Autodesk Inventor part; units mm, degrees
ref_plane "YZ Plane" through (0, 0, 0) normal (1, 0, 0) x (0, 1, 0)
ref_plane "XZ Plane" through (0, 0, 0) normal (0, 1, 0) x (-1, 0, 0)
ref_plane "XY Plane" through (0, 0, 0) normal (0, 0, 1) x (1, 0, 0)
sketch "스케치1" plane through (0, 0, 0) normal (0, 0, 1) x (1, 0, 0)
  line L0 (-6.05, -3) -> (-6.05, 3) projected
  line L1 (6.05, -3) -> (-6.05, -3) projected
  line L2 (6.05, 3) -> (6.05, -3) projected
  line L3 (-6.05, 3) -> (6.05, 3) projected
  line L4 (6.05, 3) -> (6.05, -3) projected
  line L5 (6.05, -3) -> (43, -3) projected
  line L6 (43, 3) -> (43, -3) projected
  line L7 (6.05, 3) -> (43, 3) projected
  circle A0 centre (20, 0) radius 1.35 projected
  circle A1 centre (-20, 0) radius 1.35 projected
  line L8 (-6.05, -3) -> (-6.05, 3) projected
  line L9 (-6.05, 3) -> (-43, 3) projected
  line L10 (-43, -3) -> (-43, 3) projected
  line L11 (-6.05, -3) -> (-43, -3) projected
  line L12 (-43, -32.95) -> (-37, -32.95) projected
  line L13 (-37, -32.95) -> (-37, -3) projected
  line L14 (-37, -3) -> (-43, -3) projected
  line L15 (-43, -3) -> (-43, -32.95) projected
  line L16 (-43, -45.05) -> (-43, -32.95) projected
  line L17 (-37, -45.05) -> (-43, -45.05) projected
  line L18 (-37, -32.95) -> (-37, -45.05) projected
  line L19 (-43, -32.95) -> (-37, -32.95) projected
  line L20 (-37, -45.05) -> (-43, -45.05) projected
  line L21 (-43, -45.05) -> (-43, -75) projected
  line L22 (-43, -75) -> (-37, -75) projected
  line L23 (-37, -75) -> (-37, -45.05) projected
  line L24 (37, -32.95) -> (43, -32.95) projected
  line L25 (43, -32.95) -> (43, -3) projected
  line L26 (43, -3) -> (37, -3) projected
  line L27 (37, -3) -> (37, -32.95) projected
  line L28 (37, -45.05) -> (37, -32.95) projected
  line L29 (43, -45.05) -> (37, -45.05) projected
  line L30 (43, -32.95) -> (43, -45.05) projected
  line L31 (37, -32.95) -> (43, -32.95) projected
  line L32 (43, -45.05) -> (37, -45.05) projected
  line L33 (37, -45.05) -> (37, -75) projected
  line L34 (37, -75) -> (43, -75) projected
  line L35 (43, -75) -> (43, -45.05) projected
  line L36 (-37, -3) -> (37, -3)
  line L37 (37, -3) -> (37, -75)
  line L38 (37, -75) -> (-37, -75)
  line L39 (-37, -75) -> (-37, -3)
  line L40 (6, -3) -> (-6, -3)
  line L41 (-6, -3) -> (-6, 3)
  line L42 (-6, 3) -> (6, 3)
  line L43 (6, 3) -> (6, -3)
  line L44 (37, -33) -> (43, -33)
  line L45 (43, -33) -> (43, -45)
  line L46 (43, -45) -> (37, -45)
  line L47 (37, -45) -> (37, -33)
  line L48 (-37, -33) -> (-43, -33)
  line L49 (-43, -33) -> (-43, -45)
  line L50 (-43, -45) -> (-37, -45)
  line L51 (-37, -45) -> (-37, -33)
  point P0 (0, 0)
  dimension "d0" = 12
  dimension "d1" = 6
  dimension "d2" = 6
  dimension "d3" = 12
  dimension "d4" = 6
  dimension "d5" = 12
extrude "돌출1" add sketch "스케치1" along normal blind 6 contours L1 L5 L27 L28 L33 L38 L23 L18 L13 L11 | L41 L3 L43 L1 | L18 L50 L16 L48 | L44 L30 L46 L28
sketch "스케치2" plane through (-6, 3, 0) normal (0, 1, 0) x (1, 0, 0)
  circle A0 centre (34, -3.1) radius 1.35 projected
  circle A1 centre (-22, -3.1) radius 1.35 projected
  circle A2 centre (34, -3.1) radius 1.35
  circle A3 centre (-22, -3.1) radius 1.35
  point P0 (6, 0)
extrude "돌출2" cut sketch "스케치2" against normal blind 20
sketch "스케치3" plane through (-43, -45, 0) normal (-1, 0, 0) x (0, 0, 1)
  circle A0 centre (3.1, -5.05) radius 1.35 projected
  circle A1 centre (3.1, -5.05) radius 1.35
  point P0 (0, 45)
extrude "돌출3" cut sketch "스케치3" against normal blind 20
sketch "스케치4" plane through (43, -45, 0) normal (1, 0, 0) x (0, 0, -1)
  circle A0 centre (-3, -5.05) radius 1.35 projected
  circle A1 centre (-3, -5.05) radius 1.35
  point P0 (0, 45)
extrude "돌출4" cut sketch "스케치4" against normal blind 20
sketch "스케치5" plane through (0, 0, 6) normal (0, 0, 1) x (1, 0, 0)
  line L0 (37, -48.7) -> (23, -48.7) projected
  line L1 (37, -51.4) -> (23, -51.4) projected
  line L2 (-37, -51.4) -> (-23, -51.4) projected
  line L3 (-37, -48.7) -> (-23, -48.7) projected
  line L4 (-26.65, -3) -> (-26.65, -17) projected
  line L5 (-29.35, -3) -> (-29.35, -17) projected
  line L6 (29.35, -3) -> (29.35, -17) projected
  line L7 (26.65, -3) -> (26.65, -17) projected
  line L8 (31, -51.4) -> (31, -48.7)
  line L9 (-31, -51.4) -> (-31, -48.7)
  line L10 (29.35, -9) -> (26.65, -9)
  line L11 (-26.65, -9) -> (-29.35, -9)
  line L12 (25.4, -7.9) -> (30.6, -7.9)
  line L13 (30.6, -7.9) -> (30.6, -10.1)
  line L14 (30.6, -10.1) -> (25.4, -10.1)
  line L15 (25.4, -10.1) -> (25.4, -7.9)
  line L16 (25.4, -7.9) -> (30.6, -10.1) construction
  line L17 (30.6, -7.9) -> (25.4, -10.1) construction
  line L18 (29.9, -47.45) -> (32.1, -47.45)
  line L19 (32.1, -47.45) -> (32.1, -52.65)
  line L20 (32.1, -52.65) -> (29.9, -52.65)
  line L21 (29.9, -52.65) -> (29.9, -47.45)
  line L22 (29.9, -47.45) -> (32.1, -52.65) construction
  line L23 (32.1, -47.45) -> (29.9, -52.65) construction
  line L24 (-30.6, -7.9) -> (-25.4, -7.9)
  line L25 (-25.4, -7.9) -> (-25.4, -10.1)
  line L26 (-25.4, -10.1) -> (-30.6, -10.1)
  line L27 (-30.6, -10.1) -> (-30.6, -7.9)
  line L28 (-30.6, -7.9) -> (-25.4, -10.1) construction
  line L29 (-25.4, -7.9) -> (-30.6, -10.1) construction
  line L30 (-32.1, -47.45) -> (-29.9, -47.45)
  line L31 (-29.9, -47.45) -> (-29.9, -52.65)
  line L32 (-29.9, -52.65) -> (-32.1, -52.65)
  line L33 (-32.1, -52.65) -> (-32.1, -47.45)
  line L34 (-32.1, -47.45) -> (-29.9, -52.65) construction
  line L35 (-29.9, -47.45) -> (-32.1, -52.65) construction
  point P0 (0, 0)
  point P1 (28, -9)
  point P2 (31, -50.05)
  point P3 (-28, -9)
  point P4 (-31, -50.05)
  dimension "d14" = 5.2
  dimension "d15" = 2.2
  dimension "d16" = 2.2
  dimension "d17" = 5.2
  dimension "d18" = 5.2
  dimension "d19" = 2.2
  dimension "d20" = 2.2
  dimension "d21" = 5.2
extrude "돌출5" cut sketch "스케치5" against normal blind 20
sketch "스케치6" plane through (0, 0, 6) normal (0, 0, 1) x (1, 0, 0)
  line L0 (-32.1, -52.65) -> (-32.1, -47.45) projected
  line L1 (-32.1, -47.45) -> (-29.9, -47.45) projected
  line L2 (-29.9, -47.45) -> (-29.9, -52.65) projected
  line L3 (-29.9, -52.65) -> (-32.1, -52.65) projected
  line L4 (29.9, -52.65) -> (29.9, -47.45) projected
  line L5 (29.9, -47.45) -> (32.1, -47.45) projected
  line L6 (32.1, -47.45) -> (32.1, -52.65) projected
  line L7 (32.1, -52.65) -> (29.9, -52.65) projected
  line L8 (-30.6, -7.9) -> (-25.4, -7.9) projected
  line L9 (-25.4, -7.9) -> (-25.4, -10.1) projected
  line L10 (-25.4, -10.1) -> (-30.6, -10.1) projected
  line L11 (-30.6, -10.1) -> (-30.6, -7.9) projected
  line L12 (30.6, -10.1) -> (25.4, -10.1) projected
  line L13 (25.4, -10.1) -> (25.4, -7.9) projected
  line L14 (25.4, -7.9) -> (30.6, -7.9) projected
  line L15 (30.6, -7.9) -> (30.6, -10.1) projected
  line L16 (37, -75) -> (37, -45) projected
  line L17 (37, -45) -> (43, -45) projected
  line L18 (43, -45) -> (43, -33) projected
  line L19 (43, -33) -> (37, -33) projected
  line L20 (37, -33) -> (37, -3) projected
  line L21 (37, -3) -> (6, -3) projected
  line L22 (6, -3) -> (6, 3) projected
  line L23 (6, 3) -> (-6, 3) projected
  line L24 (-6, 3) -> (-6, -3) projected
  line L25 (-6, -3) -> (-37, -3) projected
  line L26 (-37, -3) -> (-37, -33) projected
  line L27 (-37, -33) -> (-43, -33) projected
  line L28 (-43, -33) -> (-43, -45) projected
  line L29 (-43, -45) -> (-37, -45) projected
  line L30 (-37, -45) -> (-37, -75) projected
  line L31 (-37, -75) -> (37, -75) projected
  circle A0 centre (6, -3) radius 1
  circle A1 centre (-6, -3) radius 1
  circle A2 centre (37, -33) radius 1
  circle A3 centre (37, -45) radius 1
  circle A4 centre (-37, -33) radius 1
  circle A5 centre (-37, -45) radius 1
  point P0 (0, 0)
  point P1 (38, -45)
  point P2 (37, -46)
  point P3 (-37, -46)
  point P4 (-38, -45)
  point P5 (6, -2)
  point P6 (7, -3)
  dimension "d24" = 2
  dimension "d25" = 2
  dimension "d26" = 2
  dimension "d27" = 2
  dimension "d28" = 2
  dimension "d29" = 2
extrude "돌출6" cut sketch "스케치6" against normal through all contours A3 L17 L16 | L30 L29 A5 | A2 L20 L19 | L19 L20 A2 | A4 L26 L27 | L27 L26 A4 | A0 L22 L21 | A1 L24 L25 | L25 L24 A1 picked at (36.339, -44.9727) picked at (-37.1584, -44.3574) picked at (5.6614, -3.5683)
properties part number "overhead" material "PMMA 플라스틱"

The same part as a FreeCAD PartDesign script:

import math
import FreeCAD as App
import Part
import Sketcher

doc = App.newDocument("Part")
body = doc.addObject("PartDesign::Body", "Body")

# Sketch on XY plane
sketch1 = doc.addObject("Sketcher::SketchObject", "Sketch")
body.addObject(sketch1)
sketch1.AttachmentSupport = (doc.XY_Plane, [""])
sketch1.MapMode = "FlatFace"
sketch1.addGeometry(Part.LineSegment(App.Vector(-6, -3, 0), App.Vector(-37, -3, 0)), False)
sketch1.addGeometry(Part.LineSegment(App.Vector(-37, -3, 0), App.Vector(-37, -33, 0)), False)
sketch1.addGeometry(Part.LineSegment(App.Vector(-37, -33, 0), App.Vector(-43, -33, 0)), False)
sketch1.addGeometry(Part.LineSegment(App.Vector(-43, -33, 0), App.Vector(-43, -45, 0)), False)
sketch1.addGeometry(Part.LineSegment(App.Vector(-43, -45, 0), App.Vector(-37, -45, 0)), False)
sketch1.addGeometry(Part.LineSegment(App.Vector(-37, -45, 0), App.Vector(-37, -75, 0)), False)
sketch1.addGeometry(Part.LineSegment(App.Vector(-37, -75, 0), App.Vector(37, -75, 0)), False)
sketch1.addGeometry(Part.LineSegment(App.Vector(37, -75, 0), App.Vector(37, -45, 0)), False)
sketch1.addGeometry(Part.LineSegment(App.Vector(37, -45, 0), App.Vector(43, -45, 0)), False)
sketch1.addGeometry(Part.LineSegment(App.Vector(43, -45, 0), App.Vector(43, -33, 0)), False)
sketch1.addGeometry(Part.LineSegment(App.Vector(43, -33, 0), App.Vector(37, -33, 0)), False)
sketch1.addGeometry(Part.LineSegment(App.Vector(37, -33, 0), App.Vector(37, -3, 0)), False)
sketch1.addGeometry(Part.LineSegment(App.Vector(37, -3, 0), App.Vector(6, -3, 0)), False)
sketch1.addGeometry(Part.LineSegment(App.Vector(6, -3, 0), App.Vector(6, 3, 0)), False)
sketch1.addGeometry(Part.LineSegment(App.Vector(6, 3, 0), App.Vector(-6, 3, 0)), False)
sketch1.addGeometry(Part.LineSegment(App.Vector(-6, 3, 0), App.Vector(-6, -3, 0)), False)
sketch1.addConstraint(Sketcher.Constraint("Coincident", 0, 2, 1, 1))
sketch1.addConstraint(Sketcher.Constraint("Coincident", 1, 2, 2, 1))
sketch1.addConstraint(Sketcher.Constraint("Coincident", 2, 2, 3, 1))
sketch1.addConstraint(Sketcher.Constraint("Coincident", 3, 2, 4, 1))
sketch1.addConstraint(Sketcher.Constraint("Coincident", 4, 2, 5, 1))
sketch1.addConstraint(Sketcher.Constraint("Coincident", 5, 2, 6, 1))
sketch1.addConstraint(Sketcher.Constraint("Coincident", 6, 2, 7, 1))
sketch1.addConstraint(Sketcher.Constraint("Coincident", 7, 2, 8, 1))
sketch1.addConstraint(Sketcher.Constraint("Coincident", 8, 2, 9, 1))
sketch1.addConstraint(Sketcher.Constraint("Coincident", 9, 2, 10, 1))
sketch1.addConstraint(Sketcher.Constraint("Coincident", 10, 2, 11, 1))
sketch1.addConstraint(Sketcher.Constraint("Coincident", 11, 2, 12, 1))
sketch1.addConstraint(Sketcher.Constraint("Coincident", 12, 2, 13, 1))
sketch1.addConstraint(Sketcher.Constraint("Coincident", 13, 2, 14, 1))
sketch1.addConstraint(Sketcher.Constraint("Coincident", 14, 2, 15, 1))
sketch1.addConstraint(Sketcher.Constraint("Coincident", 15, 2, 0, 1))
sketch1.addConstraint(Sketcher.Constraint("Horizontal", 0))
sketch1.addConstraint(Sketcher.Constraint("Vertical", 1))
sketch1.addConstraint(Sketcher.Constraint("Horizontal", 2))
sketch1.addConstraint(Sketcher.Constraint("Vertical", 3))
sketch1.addConstraint(Sketcher.Constraint("Horizontal", 4))
sketch1.addConstraint(Sketcher.Constraint("Vertical", 5))
sketch1.addConstraint(Sketcher.Constraint("Horizontal", 6))
sketch1.addConstraint(Sketcher.Constraint("Vertical", 7))
sketch1.addConstraint(Sketcher.Constraint("Horizontal", 8))
sketch1.addConstraint(Sketcher.Constraint("Vertical", 9))
sketch1.addConstraint(Sketcher.Constraint("Horizontal", 10))
sketch1.addConstraint(Sketcher.Constraint("Vertical", 11))
sketch1.addConstraint(Sketcher.Constraint("Horizontal", 12))
sketch1.addConstraint(Sketcher.Constraint("Vertical", 13))
sketch1.addConstraint(Sketcher.Constraint("Horizontal", 14))
sketch1.addConstraint(Sketcher.Constraint("Vertical", 15))
sketch1.addConstraint(Sketcher.Constraint("Symmetric", 12, 2, 14, 2, -1, 1))
sketch1.addConstraint(Sketcher.Constraint("Symmetric", 4, 2, 7, 2, -2))
sketch1.addConstraint(Sketcher.Constraint("Symmetric", 2, 2, 9, 2, -2))
sketch1.addConstraint(Sketcher.Constraint("Symmetric", 0, 2, 11, 2, -2))
sketch1.addConstraint(Sketcher.Constraint("Vertical", 1, 2, 4, 2))
sketch1.addConstraint(Sketcher.Constraint("Equal", 14, 3))
sketch1.addConstraint(Sketcher.Constraint("Equal", 1, 5))
sketch1.addConstraint(Sketcher.Constraint("Equal", 10, 13))
sketch1.addConstraint(Sketcher.Constraint("DistanceX", 2, 2, 2, 1, 6.0))
sketch1.addConstraint(Sketcher.Constraint("DistanceX", 14, 2, 14, 1, 12.0))
sketch1.addConstraint(Sketcher.Constraint("DistanceX", 0, 2, 0, 1, 31.0))
sketch1.addConstraint(Sketcher.Constraint("DistanceY", 1, 2, 1, 1, 30.0))
pad1 = doc.addObject("PartDesign::Pad", "Pad")
body.addObject(pad1)
pad1.Profile = sketch1
pad1.Length = 6

# Sketch on XZ plane
sketch2 = doc.addObject("Sketcher::SketchObject", "Sketch001")
body.addObject(sketch2)
sketch2.AttachmentSupport = (doc.XZ_Plane, [""])
sketch2.MapMode = "FlatFace"
sketch2.AttachmentOffset = App.Placement(App.Vector(0, 0, -3), App.Rotation())
sketch2.addGeometry(Part.Circle(App.Vector(28, 3.1, 0), App.Vector(0, 0, 1), 1.35), False)
sketch2.addGeometry(Part.Circle(App.Vector(-28, 3.1, 0), App.Vector(0, 0, 1), 1.35), False)
sketch2.addConstraint(Sketcher.Constraint("Equal", 0, 1))
sketch2.addConstraint(Sketcher.Constraint("Symmetric", 0, 3, 1, 3, -2))
sketch2.addConstraint(Sketcher.Constraint("Diameter", 0, 2.7))
sketch2.addConstraint(Sketcher.Constraint("DistanceX", -1, 1, 0, 3, 28.0))
sketch2.addConstraint(Sketcher.Constraint("DistanceY", -1, 1, 0, 3, 3.1))
pocket1 = doc.addObject("PartDesign::Pocket", "Pocket")
body.addObject(pocket1)
pocket1.Profile = sketch2
pocket1.Length = 20
pocket1.Reversed = True

# Sketch on YZ plane
sketch3 = doc.addObject("Sketcher::SketchObject", "Sketch002")
body.addObject(sketch3)
sketch3.AttachmentSupport = (doc.YZ_Plane, [""])
sketch3.MapMode = "FlatFace"
sketch3.AttachmentOffset = App.Placement(App.Vector(0, 0, -43), App.Rotation())
sketch3.addGeometry(Part.Circle(App.Vector(-50.05, 3.1, 0), App.Vector(0, 0, 1), 1.35), False)
sketch3.addConstraint(Sketcher.Constraint("Diameter", 0, 2.7))
sketch3.addConstraint(Sketcher.Constraint("DistanceY", -1, 1, 0, 3, 3.1))
sketch3.addConstraint(Sketcher.Constraint("DistanceX", 0, 3, -1, 1, 50.05))
pocket2 = doc.addObject("PartDesign::Pocket", "Pocket001")
body.addObject(pocket2)
pocket2.Profile = sketch3
pocket2.Length = 20
pocket2.Reversed = True

# Sketch on YZ plane
sketch4 = doc.addObject("Sketcher::SketchObject", "Sketch003")
body.addObject(sketch4)
sketch4.AttachmentSupport = (doc.YZ_Plane, [""])
sketch4.MapMode = "FlatFace"
sketch4.AttachmentOffset = App.Placement(App.Vector(0, 0, 43), App.Rotation())
sketch4.addGeometry(Part.Circle(App.Vector(-50.05, 3, 0), App.Vector(0, 0, 1), 1.35), False)
sketch4.addConstraint(Sketcher.Constraint("Diameter", 0, 2.7))
sketch4.addConstraint(Sketcher.Constraint("DistanceY", -1, 1, 0, 3, 3.0))
sketch4.addConstraint(Sketcher.Constraint("DistanceX", 0, 3, -1, 1, 50.05))
pocket3 = doc.addObject("PartDesign::Pocket", "Pocket002")
body.addObject(pocket3)
pocket3.Profile = sketch4
pocket3.Length = 20

# Sketch on XY plane
sketch5 = doc.addObject("Sketcher::SketchObject", "Sketch004")
body.addObject(sketch5)
sketch5.AttachmentSupport = (doc.XY_Plane, [""])
sketch5.MapMode = "FlatFace"
sketch5.AttachmentOffset = App.Placement(App.Vector(0, 0, 6), App.Rotation())
sketch5.addGeometry(Part.LineSegment(App.Vector(32.1, -47.45, 0), App.Vector(29.9, -47.45, 0)), False)
sketch5.addGeometry(Part.LineSegment(App.Vector(29.9, -47.45, 0), App.Vector(29.9, -52.65, 0)), False)
sketch5.addGeometry(Part.LineSegment(App.Vector(29.9, -52.65, 0), App.Vector(32.1, -52.65, 0)), False)
sketch5.addGeometry(Part.LineSegment(App.Vector(32.1, -52.65, 0), App.Vector(32.1, -47.45, 0)), False)
sketch5.addGeometry(Part.LineSegment(App.Vector(-32.1, -52.65, 0), App.Vector(-29.9, -52.65, 0)), False)
sketch5.addGeometry(Part.LineSegment(App.Vector(-29.9, -52.65, 0), App.Vector(-29.9, -47.45, 0)), False)
sketch5.addGeometry(Part.LineSegment(App.Vector(-29.9, -47.45, 0), App.Vector(-32.1, -47.45, 0)), False)
sketch5.addGeometry(Part.LineSegment(App.Vector(-32.1, -47.45, 0), App.Vector(-32.1, -52.65, 0)), False)
sketch5.addGeometry(Part.LineSegment(App.Vector(-25.4, -7.9, 0), App.Vector(-30.6, -7.9, 0)), False)
sketch5.addGeometry(Part.LineSegment(App.Vector(-30.6, -7.9, 0), App.Vector(-30.6, -10.1, 0)), False)
sketch5.addGeometry(Part.LineSegment(App.Vector(-30.6, -10.1, 0), App.Vector(-25.4, -10.1, 0)), False)
sketch5.addGeometry(Part.LineSegment(App.Vector(-25.4, -10.1, 0), App.Vector(-25.4, -7.9, 0)), False)
sketch5.addGeometry(Part.LineSegment(App.Vector(30.6, -7.9, 0), App.Vector(25.4, -7.9, 0)), False)
sketch5.addGeometry(Part.LineSegment(App.Vector(25.4, -7.9, 0), App.Vector(25.4, -10.1, 0)), False)
sketch5.addGeometry(Part.LineSegment(App.Vector(25.4, -10.1, 0), App.Vector(30.6, -10.1, 0)), False)
sketch5.addGeometry(Part.LineSegment(App.Vector(30.6, -10.1, 0), App.Vector(30.6, -7.9, 0)), False)
sketch5.addConstraint(Sketcher.Constraint("Coincident", 0, 2, 1, 1))
sketch5.addConstraint(Sketcher.Constraint("Coincident", 1, 2, 2, 1))
sketch5.addConstraint(Sketcher.Constraint("Coincident", 2, 2, 3, 1))
sketch5.addConstraint(Sketcher.Constraint("Coincident", 3, 2, 0, 1))
sketch5.addConstraint(Sketcher.Constraint("Coincident", 4, 2, 5, 1))
sketch5.addConstraint(Sketcher.Constraint("Coincident", 5, 2, 6, 1))
sketch5.addConstraint(Sketcher.Constraint("Coincident", 6, 2, 7, 1))
sketch5.addConstraint(Sketcher.Constraint("Coincident", 7, 2, 4, 1))
sketch5.addConstraint(Sketcher.Constraint("Coincident", 8, 2, 9, 1))
sketch5.addConstraint(Sketcher.Constraint("Coincident", 9, 2, 10, 1))
sketch5.addConstraint(Sketcher.Constraint("Coincident", 10, 2, 11, 1))
sketch5.addConstraint(Sketcher.Constraint("Coincident", 11, 2, 8, 1))
sketch5.addConstraint(Sketcher.Constraint("Coincident", 12, 2, 13, 1))
sketch5.addConstraint(Sketcher.Constraint("Coincident", 13, 2, 14, 1))
sketch5.addConstraint(Sketcher.Constraint("Coincident", 14, 2, 15, 1))
sketch5.addConstraint(Sketcher.Constraint("Coincident", 15, 2, 12, 1))
sketch5.addConstraint(Sketcher.Constraint("Horizontal", 0))
sketch5.addConstraint(Sketcher.Constraint("Vertical", 1))
sketch5.addConstraint(Sketcher.Constraint("Horizontal", 2))
sketch5.addConstraint(Sketcher.Constraint("Vertical", 3))
sketch5.addConstraint(Sketcher.Constraint("Horizontal", 4))
sketch5.addConstraint(Sketcher.Constraint("Vertical", 5))
sketch5.addConstraint(Sketcher.Constraint("Horizontal", 6))
sketch5.addConstraint(Sketcher.Constraint("Vertical", 7))
sketch5.addConstraint(Sketcher.Constraint("Horizontal", 8))
sketch5.addConstraint(Sketcher.Constraint("Vertical", 9))
sketch5.addConstraint(Sketcher.Constraint("Horizontal", 10))
sketch5.addConstraint(Sketcher.Constraint("Vertical", 11))
sketch5.addConstraint(Sketcher.Constraint("Horizontal", 12))
sketch5.addConstraint(Sketcher.Constraint("Vertical", 13))
sketch5.addConstraint(Sketcher.Constraint("Horizontal", 14))
sketch5.addConstraint(Sketcher.Constraint("Vertical", 15))
sketch5.addConstraint(Sketcher.Constraint("Symmetric", 1, 2, 4, 2, -2))
sketch5.addConstraint(Sketcher.Constraint("Symmetric", 3, 2, 6, 2, -2))
sketch5.addConstraint(Sketcher.Constraint("Symmetric", 11, 2, 12, 2, -2))
sketch5.addConstraint(Sketcher.Constraint("Symmetric", 9, 2, 14, 2, -2))
sketch5.addConstraint(Sketcher.Constraint("Equal", 14, 1))
sketch5.addConstraint(Sketcher.Constraint("Equal", 6, 9))
sketch5.addConstraint(Sketcher.Constraint("DistanceX", 0, 2, 0, 1, 2.2))
sketch5.addConstraint(Sketcher.Constraint("DistanceX", 8, 2, 8, 1, 5.2))
sketch5.addConstraint(Sketcher.Constraint("DistanceX", 4, 2, 2, 2, 62.0))
sketch5.addConstraint(Sketcher.Constraint("DistanceX", 8, 2, -1, 1, 30.6))
sketch5.addConstraint(Sketcher.Constraint("DistanceY", 8, 2, -1, 1, 7.9))
sketch5.addConstraint(Sketcher.Constraint("DistanceY", 0, 2, -1, 1, 47.45))
pocket4 = doc.addObject("PartDesign::Pocket", "Pocket003")
body.addObject(pocket4)
pocket4.Profile = sketch5
pocket4.Length = 20

# Sketch on XY plane
sketch6 = doc.addObject("Sketcher::SketchObject", "Sketch005")
body.addObject(sketch6)
sketch6.AttachmentSupport = (doc.XY_Plane, [""])
sketch6.MapMode = "FlatFace"
sketch6.AttachmentOffset = App.Placement(App.Vector(0, 0, 6), App.Rotation())
sketch6.addGeometry(Part.ArcOfCircle(Part.Circle(App.Vector(37, -45, 0), App.Vector(0, 0, 1), 1), math.radians(0), math.radians(270)), False)
sketch6.addGeometry(Part.LineSegment(App.Vector(37, -46, 0), App.Vector(37, -45, 0)), False)
sketch6.addGeometry(Part.LineSegment(App.Vector(37, -45, 0), App.Vector(38, -45, 0)), False)
sketch6.addGeometry(Part.LineSegment(App.Vector(-37, -45, 0), App.Vector(-37, -46, 0)), False)
sketch6.addGeometry(Part.ArcOfCircle(Part.Circle(App.Vector(-37, -45, 0), App.Vector(0, 0, 1), 1), math.radians(-90), math.radians(180)), False)
sketch6.addGeometry(Part.LineSegment(App.Vector(-38, -45, 0), App.Vector(-37, -45, 0)), False)
sketch6.addGeometry(Part.Circle(App.Vector(37, -33, 0), App.Vector(0, 0, 1), 1), False)
sketch6.addGeometry(Part.Circle(App.Vector(-37, -33, 0), App.Vector(0, 0, 1), 1), False)
sketch6.addGeometry(Part.ArcOfCircle(Part.Circle(App.Vector(6, -3, 0), App.Vector(0, 0, 1), 1), math.radians(90), math.radians(360)), False)
sketch6.addGeometry(Part.LineSegment(App.Vector(7, -3, 0), App.Vector(6, -3, 0)), False)
sketch6.addGeometry(Part.LineSegment(App.Vector(6, -3, 0), App.Vector(6, -2, 0)), False)
sketch6.addGeometry(Part.Circle(App.Vector(-6, -3, 0), App.Vector(0, 0, 1), 1), False)
sketch6.addConstraint(Sketcher.Constraint("Coincident", 0, 2, 1, 1))
sketch6.addConstraint(Sketcher.Constraint("Coincident", 1, 2, 2, 1))
sketch6.addConstraint(Sketcher.Constraint("Coincident", 2, 2, 0, 1))
sketch6.addConstraint(Sketcher.Constraint("Coincident", 3, 2, 4, 1))
sketch6.addConstraint(Sketcher.Constraint("Coincident", 4, 2, 5, 1))
sketch6.addConstraint(Sketcher.Constraint("Coincident", 5, 2, 3, 1))
sketch6.addConstraint(Sketcher.Constraint("Coincident", 8, 2, 9, 1))
sketch6.addConstraint(Sketcher.Constraint("Coincident", 9, 2, 10, 1))
sketch6.addConstraint(Sketcher.Constraint("Coincident", 10, 2, 8, 1))
sketch6.addConstraint(Sketcher.Constraint("Vertical", 1))
sketch6.addConstraint(Sketcher.Constraint("Horizontal", 2))
sketch6.addConstraint(Sketcher.Constraint("Vertical", 3))
sketch6.addConstraint(Sketcher.Constraint("Horizontal", 5))
sketch6.addConstraint(Sketcher.Constraint("Horizontal", 9))
sketch6.addConstraint(Sketcher.Constraint("Vertical", 10))
sketch6.addConstraint(Sketcher.Constraint("Coincident", 1, 2, 0, 3))
sketch6.addConstraint(Sketcher.Constraint("Coincident", 5, 2, 4, 3))
sketch6.addConstraint(Sketcher.Constraint("Coincident", 9, 2, 8, 3))
sketch6.addConstraint(Sketcher.Constraint("Equal", 0, 4))
sketch6.addConstraint(Sketcher.Constraint("Equal", 4, 6))
sketch6.addConstraint(Sketcher.Constraint("Equal", 6, 7))
sketch6.addConstraint(Sketcher.Constraint("Equal", 7, 8))
sketch6.addConstraint(Sketcher.Constraint("Equal", 8, 11))
sketch6.addConstraint(Sketcher.Constraint("Symmetric", 0, 3, 4, 3, -2))
sketch6.addConstraint(Sketcher.Constraint("Symmetric", 6, 3, 7, 3, -2))
sketch6.addConstraint(Sketcher.Constraint("Symmetric", 8, 3, 11, 3, -2))
sketch6.addConstraint(Sketcher.Constraint("Vertical", 0, 3, 6, 3))
sketch6.addConstraint(Sketcher.Constraint("Diameter", 6, 2.0))
sketch6.addConstraint(Sketcher.Constraint("DistanceY", 10, 2, -1, 1, 2.0))
sketch6.addConstraint(Sketcher.Constraint("DistanceX", -1, 1, 0, 3, 37.0))
sketch6.addConstraint(Sketcher.Constraint("DistanceY", 0, 3, -1, 1, 45.0))
sketch6.addConstraint(Sketcher.Constraint("DistanceY", 6, 3, -1, 1, 33.0))
sketch6.addConstraint(Sketcher.Constraint("DistanceX", -1, 1, 8, 3, 6.0))
pocket5 = doc.addObject("PartDesign::Pocket", "Pocket004")
body.addObject(pocket5)
pocket5.Profile = sketch6
pocket5.Type = "ThroughAll"

doc.recompute()
